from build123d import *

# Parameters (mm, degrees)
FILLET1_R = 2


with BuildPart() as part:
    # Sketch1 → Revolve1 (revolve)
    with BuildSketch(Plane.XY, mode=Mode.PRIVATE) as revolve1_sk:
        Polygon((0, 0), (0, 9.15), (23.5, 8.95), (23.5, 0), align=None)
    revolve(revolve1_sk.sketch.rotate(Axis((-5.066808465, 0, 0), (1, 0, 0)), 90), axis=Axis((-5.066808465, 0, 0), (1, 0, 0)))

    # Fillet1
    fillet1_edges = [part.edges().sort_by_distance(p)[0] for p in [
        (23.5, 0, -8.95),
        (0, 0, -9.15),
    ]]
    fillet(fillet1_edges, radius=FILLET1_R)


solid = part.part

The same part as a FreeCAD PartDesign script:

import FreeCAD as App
import Part
import Sketcher


def edges_at(feature, points):
    """Names of the edges that pass closest to the given points."""
    edges = feature.Shape.Edges
    near = lambda p: min(range(len(edges)), key=lambda i: edges[i].distToShape(Part.Vertex(*p))[0])
    return sorted({f"Edge{near(p) + 1}" for p in points})


def add_polygon(sketch, points):
    """Adds a closed chain of lines whose ends are joined by coincident constraints."""
    first, n = sketch.GeometryCount, len(points)
    for a, b in zip(points, points[1:] + points[:1]):
        sketch.addGeometry(Part.LineSegment(App.Vector(*a, 0), App.Vector(*b, 0)), False)
    for i in range(n):
        sketch.addConstraint(Sketcher.Constraint("Coincident", first + i, 2, first + (i + 1) % n, 1))

doc = App.newDocument("Part")
body = doc.addObject("PartDesign::Body", "Body")

# Sketch on XY plane
sketch1 = doc.addObject("Sketcher::SketchObject", "Sketch")
body.addObject(sketch1)
sketch1.AttachmentSupport = (doc.XY_Plane, [""])
sketch1.MapMode = "FlatFace"
add_polygon(sketch1, [(0, 9), (0, 0), (24, 0), (24, 9)])  # lines 0-3
sketch1.addConstraint([
    Sketcher.Constraint("Vertical", 0),
    Sketcher.Constraint("Horizontal", 1),
    Sketcher.Constraint("Vertical", 2),
    Sketcher.Constraint("Coincident", 0, 2, -1, 1),
    Sketcher.Constraint("DistanceX", 1, 1, 1, 2, 23.5),
    Sketcher.Constraint("DistanceY", 0, 2, 0, 1, 9.15),
    Sketcher.Constraint("DistanceY", 2, 1, 2, 2, 8.95),
])
revolution = doc.addObject("PartDesign::Revolution", "Revolution")
body.addObject(revolution)
revolution.Profile = sketch1
revolution.ReferenceAxis = (sketch1, ["H_Axis"])
revolution.Angle = 360
doc.recompute()

fillet = doc.addObject("PartDesign::Fillet", "Fillet")
body.addObject(fillet)
fillet.Base = (revolution, edges_at(revolution, [(23.5, 0, -8.95), (0, 0, -9.15)]))
fillet.Radius = 2

doc.recompute()
